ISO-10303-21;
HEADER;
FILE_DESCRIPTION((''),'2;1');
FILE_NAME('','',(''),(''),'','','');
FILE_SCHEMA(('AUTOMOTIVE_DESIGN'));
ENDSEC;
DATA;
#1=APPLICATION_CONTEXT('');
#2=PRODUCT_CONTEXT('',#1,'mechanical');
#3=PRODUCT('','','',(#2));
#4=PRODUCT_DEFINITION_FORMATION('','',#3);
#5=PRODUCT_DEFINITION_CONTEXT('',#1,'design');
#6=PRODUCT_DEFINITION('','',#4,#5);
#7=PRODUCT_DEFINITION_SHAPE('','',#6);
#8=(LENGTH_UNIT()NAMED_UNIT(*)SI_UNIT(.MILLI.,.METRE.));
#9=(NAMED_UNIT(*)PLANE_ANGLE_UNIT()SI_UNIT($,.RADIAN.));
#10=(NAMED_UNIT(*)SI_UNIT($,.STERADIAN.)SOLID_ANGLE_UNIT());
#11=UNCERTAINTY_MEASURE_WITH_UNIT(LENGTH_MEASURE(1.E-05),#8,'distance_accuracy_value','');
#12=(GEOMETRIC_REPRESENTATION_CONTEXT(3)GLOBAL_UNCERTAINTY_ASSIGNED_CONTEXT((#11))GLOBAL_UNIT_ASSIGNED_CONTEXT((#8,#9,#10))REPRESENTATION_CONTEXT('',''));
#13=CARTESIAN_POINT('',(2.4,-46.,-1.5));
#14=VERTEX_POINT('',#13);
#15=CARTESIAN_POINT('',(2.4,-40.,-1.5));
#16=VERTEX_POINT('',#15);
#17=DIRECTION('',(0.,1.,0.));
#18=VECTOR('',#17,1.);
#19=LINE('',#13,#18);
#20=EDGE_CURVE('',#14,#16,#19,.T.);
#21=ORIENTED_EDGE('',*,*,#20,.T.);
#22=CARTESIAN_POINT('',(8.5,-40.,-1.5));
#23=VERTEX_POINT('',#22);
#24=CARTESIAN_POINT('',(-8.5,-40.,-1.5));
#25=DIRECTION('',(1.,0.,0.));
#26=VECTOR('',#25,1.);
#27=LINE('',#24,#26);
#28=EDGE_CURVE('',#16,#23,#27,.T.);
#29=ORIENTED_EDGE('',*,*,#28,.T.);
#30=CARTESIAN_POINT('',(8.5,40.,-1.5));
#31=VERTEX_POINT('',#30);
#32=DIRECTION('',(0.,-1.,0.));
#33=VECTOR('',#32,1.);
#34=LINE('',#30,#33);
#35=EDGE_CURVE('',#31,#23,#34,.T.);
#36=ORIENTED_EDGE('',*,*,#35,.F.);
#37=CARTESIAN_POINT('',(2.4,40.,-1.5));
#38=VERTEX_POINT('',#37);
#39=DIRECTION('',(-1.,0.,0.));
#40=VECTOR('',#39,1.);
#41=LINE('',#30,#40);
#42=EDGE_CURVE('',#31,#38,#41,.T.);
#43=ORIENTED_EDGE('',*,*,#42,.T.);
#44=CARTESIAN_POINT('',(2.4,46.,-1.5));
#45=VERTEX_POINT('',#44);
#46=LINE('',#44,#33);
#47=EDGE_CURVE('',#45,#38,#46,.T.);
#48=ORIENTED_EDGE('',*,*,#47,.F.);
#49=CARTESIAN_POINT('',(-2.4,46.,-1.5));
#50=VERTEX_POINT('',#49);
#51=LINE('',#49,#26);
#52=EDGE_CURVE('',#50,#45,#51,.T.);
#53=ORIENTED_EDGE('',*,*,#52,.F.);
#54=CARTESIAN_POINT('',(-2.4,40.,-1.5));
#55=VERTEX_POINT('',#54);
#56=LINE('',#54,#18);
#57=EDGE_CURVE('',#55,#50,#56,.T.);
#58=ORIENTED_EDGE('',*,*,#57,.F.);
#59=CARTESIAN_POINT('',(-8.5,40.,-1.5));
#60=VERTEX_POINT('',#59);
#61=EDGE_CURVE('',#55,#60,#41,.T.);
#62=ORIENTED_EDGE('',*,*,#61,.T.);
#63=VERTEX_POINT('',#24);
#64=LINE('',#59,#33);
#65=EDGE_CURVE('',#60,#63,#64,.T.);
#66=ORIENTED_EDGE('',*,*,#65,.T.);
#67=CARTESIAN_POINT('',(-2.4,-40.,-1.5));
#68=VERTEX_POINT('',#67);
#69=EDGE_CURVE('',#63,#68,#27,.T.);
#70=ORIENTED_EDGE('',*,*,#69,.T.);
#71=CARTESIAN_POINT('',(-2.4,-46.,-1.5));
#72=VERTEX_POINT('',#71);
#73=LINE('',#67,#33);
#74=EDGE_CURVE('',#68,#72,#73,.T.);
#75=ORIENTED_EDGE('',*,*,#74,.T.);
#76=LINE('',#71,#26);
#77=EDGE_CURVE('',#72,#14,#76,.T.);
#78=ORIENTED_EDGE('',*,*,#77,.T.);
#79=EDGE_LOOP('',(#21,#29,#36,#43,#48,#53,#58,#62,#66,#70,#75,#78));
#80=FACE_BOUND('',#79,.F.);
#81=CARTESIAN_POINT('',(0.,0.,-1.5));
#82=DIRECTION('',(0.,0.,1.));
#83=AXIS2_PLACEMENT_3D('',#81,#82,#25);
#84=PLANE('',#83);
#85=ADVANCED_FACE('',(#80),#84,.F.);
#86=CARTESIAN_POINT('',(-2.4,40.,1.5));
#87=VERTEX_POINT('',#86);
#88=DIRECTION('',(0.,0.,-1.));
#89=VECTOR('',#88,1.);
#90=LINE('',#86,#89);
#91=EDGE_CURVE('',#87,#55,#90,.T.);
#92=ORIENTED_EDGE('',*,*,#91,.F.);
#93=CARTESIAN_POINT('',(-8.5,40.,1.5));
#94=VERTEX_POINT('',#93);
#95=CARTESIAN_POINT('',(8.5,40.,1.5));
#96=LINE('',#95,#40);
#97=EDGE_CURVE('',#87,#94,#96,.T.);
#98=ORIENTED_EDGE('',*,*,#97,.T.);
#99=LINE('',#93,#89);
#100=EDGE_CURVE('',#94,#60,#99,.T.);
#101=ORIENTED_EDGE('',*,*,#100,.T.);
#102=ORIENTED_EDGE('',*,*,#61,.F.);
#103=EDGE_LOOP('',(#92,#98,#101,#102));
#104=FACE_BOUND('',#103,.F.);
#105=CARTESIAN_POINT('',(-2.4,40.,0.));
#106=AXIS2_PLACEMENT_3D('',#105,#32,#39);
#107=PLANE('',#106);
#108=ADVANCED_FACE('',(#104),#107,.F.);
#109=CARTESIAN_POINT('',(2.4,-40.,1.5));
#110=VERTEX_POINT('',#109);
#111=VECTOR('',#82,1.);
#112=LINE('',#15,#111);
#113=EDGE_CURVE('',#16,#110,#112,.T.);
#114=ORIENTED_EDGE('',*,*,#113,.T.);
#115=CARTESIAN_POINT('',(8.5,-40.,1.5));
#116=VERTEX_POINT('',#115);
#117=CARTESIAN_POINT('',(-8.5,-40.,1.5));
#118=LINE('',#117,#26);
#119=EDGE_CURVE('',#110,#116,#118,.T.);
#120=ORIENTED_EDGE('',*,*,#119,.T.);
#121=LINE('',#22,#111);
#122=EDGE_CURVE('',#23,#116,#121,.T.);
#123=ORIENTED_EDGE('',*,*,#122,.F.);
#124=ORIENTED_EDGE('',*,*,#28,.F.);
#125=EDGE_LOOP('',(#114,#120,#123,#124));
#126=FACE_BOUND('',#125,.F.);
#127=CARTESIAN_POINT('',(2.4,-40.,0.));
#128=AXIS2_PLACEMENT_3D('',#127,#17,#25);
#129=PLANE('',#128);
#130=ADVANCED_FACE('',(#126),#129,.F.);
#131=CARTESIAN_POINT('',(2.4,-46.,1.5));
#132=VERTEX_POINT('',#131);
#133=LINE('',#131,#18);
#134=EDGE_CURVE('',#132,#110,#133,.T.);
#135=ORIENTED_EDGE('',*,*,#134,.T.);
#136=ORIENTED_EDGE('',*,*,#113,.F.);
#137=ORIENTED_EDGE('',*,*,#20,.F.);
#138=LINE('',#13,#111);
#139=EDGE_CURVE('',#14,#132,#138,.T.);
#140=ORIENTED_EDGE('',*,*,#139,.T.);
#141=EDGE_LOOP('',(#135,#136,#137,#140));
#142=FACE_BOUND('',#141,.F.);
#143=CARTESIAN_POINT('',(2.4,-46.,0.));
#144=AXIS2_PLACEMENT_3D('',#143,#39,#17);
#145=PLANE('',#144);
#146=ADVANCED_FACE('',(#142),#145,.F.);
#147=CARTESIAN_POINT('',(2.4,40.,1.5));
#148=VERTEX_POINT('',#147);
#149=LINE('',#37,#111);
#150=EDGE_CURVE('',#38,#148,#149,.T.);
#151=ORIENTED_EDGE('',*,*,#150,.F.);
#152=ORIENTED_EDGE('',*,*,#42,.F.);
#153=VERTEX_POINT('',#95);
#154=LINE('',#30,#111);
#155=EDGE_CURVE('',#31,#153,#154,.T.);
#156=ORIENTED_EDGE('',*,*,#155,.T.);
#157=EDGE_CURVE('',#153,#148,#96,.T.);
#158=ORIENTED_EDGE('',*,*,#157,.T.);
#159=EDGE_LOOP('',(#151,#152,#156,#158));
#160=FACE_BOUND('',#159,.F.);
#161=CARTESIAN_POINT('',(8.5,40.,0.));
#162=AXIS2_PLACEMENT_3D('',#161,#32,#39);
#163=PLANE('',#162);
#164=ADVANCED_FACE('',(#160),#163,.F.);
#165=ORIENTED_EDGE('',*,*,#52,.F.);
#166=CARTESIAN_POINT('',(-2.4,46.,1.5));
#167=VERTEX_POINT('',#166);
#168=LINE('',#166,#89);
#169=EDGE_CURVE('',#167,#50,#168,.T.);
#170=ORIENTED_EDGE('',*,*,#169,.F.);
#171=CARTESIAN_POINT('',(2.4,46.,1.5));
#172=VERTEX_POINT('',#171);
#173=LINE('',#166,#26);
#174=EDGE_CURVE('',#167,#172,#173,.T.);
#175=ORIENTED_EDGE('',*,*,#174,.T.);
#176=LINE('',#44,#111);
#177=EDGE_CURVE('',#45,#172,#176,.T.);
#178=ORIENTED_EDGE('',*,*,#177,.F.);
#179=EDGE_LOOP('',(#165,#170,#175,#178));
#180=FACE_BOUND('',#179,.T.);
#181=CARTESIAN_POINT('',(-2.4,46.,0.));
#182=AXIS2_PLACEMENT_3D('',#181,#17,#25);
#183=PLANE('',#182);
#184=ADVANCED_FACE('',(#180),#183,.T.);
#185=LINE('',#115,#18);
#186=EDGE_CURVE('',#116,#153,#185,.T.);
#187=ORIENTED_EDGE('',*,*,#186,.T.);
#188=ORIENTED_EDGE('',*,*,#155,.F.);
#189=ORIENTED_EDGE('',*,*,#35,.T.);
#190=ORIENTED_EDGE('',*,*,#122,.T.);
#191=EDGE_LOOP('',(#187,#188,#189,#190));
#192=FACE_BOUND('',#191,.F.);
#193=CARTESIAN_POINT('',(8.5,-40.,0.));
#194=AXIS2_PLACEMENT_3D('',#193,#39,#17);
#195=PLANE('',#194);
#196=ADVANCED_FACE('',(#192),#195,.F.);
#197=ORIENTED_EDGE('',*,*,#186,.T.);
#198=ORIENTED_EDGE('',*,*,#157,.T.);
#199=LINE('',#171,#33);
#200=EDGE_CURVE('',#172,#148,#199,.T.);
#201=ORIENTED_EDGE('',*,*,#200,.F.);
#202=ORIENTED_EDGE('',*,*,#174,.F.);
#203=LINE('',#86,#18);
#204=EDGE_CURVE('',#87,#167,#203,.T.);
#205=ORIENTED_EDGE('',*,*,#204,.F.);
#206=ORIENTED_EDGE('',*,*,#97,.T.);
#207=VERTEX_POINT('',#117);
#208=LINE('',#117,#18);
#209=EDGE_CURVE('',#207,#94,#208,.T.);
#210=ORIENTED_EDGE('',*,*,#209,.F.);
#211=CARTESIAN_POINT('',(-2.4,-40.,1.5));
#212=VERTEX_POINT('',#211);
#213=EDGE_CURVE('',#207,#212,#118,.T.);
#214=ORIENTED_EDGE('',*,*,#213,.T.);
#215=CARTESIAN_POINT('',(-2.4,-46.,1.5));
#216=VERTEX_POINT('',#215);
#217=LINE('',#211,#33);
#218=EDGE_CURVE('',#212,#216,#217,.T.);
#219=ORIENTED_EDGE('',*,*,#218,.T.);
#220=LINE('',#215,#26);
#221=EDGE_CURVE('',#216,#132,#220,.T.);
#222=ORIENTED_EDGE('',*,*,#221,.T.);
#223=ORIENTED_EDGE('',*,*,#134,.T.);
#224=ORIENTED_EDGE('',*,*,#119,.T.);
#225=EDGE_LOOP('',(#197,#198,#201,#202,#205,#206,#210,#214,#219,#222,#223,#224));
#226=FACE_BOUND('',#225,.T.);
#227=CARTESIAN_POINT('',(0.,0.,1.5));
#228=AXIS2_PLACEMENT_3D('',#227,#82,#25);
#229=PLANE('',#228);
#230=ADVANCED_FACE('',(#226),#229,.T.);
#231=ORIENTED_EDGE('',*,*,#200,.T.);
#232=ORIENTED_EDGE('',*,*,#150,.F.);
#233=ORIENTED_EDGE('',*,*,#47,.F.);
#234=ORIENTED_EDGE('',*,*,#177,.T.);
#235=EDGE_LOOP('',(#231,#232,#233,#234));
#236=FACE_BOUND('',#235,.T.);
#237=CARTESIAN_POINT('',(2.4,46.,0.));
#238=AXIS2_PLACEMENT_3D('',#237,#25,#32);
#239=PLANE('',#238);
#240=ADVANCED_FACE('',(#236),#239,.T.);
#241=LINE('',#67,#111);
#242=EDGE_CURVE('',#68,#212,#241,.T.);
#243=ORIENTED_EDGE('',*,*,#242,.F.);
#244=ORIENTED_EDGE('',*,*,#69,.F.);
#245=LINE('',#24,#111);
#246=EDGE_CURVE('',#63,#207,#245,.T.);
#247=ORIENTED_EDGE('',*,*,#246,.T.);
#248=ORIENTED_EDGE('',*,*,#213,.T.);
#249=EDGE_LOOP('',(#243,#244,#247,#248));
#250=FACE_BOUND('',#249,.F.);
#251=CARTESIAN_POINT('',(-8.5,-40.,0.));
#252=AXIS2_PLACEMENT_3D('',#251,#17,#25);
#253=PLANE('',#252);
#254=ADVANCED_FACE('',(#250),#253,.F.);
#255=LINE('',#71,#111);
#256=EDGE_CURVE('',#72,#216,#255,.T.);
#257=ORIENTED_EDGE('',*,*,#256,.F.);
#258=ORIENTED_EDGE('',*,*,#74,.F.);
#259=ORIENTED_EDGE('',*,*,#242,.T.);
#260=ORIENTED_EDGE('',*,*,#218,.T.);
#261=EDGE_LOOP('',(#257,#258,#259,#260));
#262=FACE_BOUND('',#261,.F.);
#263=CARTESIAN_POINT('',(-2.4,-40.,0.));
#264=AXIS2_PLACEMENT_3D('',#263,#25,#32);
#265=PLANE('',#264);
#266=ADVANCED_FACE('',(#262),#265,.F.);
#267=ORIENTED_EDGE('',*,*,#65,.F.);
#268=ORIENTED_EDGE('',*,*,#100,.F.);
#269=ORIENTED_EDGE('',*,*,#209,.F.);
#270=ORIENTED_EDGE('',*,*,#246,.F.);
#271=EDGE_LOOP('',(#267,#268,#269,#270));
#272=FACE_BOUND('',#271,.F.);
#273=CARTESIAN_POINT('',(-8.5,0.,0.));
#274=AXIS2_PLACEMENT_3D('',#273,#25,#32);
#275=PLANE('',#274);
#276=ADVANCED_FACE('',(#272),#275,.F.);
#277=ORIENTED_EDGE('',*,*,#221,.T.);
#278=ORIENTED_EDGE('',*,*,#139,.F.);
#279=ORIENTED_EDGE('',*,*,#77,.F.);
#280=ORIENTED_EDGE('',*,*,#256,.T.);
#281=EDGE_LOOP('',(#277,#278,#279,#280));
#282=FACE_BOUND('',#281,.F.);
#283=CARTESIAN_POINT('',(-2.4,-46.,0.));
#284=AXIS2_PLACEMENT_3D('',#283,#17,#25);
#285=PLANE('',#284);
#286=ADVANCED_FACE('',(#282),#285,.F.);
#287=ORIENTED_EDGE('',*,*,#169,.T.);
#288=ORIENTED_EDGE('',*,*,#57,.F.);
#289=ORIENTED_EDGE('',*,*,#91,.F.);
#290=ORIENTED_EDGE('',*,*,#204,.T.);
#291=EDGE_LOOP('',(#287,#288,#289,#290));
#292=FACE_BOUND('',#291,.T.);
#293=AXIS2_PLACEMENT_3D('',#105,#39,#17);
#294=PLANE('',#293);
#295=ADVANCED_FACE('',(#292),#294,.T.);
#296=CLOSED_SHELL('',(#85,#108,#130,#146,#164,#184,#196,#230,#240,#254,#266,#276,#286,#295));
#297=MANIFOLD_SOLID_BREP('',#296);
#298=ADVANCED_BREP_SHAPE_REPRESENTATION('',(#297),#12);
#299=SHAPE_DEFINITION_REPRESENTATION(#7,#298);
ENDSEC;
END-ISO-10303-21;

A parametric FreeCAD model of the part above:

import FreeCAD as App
import Part
import Sketcher

doc = App.newDocument("Part")
body = doc.addObject("PartDesign::Body", "Body")

# Sketch on XY plane
sketch1 = body.newObject("Sketcher::SketchObject", "Sketch")
sketch1.AttachmentSupport = (doc.getObject("XY_Plane"), [""])
sketch1.MapMode = "FlatFace"
sketch1.addGeometry(Part.LineSegment(App.Vector(-8.5, -40, 0), App.Vector(-2.4, -40, 0)), False)
sketch1.addGeometry(Part.LineSegment(App.Vector(-2.4, -40, 0), App.Vector(-2.4, -46, 0)), False)
sketch1.addGeometry(Part.LineSegment(App.Vector(-2.4, -46, 0), App.Vector(2.4, -46, 0)), False)
sketch1.addGeometry(Part.LineSegment(App.Vector(2.4, -46, 0), App.Vector(2.4, -40, 0)), False)
sketch1.addGeometry(Part.LineSegment(App.Vector(2.4, -40, 0), App.Vector(8.5, -40, 0)), False)
sketch1.addGeometry(Part.LineSegment(App.Vector(8.5, -40, 0), App.Vector(8.5, 40, 0)), False)
sketch1.addGeometry(Part.LineSegment(App.Vector(8.5, 40, 0), App.Vector(2.4, 40, 0)), False)
sketch1.addGeometry(Part.LineSegment(App.Vector(2.4, 40, 0), App.Vector(2.4, 46, 0)), False)
sketch1.addGeometry(Part.LineSegment(App.Vector(2.4, 46, 0), App.Vector(-2.4, 46, 0)), False)
sketch1.addGeometry(Part.LineSegment(App.Vector(-2.4, 46, 0), App.Vector(-2.4, 40, 0)), False)
sketch1.addGeometry(Part.LineSegment(App.Vector(-2.4, 40, 0), App.Vector(-8.5, 40, 0)), False)
sketch1.addGeometry(Part.LineSegment(App.Vector(-8.5, 40, 0), App.Vector(-8.5, -40, 0)), False)
sketch1.addConstraint(Sketcher.Constraint("Coincident", 0, 2, 1, 1))
sketch1.addConstraint(Sketcher.Constraint("Coincident", 1, 2, 2, 1))
sketch1.addConstraint(Sketcher.Constraint("Coincident", 2, 2, 3, 1))
sketch1.addConstraint(Sketcher.Constraint("Coincident", 3, 2, 4, 1))
sketch1.addConstraint(Sketcher.Constraint("Coincident", 4, 2, 5, 1))
sketch1.addConstraint(Sketcher.Constraint("Coincident", 5, 2, 6, 1))
sketch1.addConstraint(Sketcher.Constraint("Coincident", 6, 2, 7, 1))
sketch1.addConstraint(Sketcher.Constraint("Coincident", 7, 2, 8, 1))
sketch1.addConstraint(Sketcher.Constraint("Coincident", 8, 2, 9, 1))
sketch1.addConstraint(Sketcher.Constraint("Coincident", 9, 2, 10, 1))
sketch1.addConstraint(Sketcher.Constraint("Coincident", 10, 2, 11, 1))
sketch1.addConstraint(Sketcher.Constraint("Coincident", 11, 2, 0, 1))
sketch1.addConstraint(Sketcher.Constraint("Horizontal", 0))
sketch1.addConstraint(Sketcher.Constraint("Vertical", 1))
sketch1.addConstraint(Sketcher.Constraint("Horizontal", 2))
sketch1.addConstraint(Sketcher.Constraint("Vertical", 3))
sketch1.addConstraint(Sketcher.Constraint("Horizontal", 4))
sketch1.addConstraint(Sketcher.Constraint("Vertical", 5))
sketch1.addConstraint(Sketcher.Constraint("Horizontal", 6))
sketch1.addConstraint(Sketcher.Constraint("Vertical", 7))
sketch1.addConstraint(Sketcher.Constraint("Horizontal", 8))
sketch1.addConstraint(Sketcher.Constraint("Vertical", 9))
sketch1.addConstraint(Sketcher.Constraint("Horizontal", 10))
sketch1.addConstraint(Sketcher.Constraint("Vertical", 11))
sketch1.addConstraint(Sketcher.Constraint("Symmetric", 0, 2, 6, 2, -1, 1))
sketch1.addConstraint(Sketcher.Constraint("Symmetric", 2, 2, 8, 2, -1, 1))
sketch1.addConstraint(Sketcher.Constraint("Symmetric", 4, 2, 10, 2, -1, 1))
sketch1.addConstraint(Sketcher.Constraint("Symmetric", 0, 2, 3, 2, -2))
sketch1.addConstraint(Sketcher.Constraint("DistanceY", 1, 2, 1, 1, 6.0))
sketch1.addConstraint(Sketcher.Constraint("DistanceY", 5, 1, 5, 2, 80.0))
sketch1.addConstraint(Sketcher.Constraint("DistanceX", 2, 1, 2, 2, 4.8))
sketch1.addConstraint(Sketcher.Constraint("DistanceX", 10, 2, 5, 2, 17.0))
pad1 = body.newObject("PartDesign::Pad", "Pad")
pad1.Profile = sketch1
pad1.Length = 3
pad1.Midplane = True

doc.recompute()
